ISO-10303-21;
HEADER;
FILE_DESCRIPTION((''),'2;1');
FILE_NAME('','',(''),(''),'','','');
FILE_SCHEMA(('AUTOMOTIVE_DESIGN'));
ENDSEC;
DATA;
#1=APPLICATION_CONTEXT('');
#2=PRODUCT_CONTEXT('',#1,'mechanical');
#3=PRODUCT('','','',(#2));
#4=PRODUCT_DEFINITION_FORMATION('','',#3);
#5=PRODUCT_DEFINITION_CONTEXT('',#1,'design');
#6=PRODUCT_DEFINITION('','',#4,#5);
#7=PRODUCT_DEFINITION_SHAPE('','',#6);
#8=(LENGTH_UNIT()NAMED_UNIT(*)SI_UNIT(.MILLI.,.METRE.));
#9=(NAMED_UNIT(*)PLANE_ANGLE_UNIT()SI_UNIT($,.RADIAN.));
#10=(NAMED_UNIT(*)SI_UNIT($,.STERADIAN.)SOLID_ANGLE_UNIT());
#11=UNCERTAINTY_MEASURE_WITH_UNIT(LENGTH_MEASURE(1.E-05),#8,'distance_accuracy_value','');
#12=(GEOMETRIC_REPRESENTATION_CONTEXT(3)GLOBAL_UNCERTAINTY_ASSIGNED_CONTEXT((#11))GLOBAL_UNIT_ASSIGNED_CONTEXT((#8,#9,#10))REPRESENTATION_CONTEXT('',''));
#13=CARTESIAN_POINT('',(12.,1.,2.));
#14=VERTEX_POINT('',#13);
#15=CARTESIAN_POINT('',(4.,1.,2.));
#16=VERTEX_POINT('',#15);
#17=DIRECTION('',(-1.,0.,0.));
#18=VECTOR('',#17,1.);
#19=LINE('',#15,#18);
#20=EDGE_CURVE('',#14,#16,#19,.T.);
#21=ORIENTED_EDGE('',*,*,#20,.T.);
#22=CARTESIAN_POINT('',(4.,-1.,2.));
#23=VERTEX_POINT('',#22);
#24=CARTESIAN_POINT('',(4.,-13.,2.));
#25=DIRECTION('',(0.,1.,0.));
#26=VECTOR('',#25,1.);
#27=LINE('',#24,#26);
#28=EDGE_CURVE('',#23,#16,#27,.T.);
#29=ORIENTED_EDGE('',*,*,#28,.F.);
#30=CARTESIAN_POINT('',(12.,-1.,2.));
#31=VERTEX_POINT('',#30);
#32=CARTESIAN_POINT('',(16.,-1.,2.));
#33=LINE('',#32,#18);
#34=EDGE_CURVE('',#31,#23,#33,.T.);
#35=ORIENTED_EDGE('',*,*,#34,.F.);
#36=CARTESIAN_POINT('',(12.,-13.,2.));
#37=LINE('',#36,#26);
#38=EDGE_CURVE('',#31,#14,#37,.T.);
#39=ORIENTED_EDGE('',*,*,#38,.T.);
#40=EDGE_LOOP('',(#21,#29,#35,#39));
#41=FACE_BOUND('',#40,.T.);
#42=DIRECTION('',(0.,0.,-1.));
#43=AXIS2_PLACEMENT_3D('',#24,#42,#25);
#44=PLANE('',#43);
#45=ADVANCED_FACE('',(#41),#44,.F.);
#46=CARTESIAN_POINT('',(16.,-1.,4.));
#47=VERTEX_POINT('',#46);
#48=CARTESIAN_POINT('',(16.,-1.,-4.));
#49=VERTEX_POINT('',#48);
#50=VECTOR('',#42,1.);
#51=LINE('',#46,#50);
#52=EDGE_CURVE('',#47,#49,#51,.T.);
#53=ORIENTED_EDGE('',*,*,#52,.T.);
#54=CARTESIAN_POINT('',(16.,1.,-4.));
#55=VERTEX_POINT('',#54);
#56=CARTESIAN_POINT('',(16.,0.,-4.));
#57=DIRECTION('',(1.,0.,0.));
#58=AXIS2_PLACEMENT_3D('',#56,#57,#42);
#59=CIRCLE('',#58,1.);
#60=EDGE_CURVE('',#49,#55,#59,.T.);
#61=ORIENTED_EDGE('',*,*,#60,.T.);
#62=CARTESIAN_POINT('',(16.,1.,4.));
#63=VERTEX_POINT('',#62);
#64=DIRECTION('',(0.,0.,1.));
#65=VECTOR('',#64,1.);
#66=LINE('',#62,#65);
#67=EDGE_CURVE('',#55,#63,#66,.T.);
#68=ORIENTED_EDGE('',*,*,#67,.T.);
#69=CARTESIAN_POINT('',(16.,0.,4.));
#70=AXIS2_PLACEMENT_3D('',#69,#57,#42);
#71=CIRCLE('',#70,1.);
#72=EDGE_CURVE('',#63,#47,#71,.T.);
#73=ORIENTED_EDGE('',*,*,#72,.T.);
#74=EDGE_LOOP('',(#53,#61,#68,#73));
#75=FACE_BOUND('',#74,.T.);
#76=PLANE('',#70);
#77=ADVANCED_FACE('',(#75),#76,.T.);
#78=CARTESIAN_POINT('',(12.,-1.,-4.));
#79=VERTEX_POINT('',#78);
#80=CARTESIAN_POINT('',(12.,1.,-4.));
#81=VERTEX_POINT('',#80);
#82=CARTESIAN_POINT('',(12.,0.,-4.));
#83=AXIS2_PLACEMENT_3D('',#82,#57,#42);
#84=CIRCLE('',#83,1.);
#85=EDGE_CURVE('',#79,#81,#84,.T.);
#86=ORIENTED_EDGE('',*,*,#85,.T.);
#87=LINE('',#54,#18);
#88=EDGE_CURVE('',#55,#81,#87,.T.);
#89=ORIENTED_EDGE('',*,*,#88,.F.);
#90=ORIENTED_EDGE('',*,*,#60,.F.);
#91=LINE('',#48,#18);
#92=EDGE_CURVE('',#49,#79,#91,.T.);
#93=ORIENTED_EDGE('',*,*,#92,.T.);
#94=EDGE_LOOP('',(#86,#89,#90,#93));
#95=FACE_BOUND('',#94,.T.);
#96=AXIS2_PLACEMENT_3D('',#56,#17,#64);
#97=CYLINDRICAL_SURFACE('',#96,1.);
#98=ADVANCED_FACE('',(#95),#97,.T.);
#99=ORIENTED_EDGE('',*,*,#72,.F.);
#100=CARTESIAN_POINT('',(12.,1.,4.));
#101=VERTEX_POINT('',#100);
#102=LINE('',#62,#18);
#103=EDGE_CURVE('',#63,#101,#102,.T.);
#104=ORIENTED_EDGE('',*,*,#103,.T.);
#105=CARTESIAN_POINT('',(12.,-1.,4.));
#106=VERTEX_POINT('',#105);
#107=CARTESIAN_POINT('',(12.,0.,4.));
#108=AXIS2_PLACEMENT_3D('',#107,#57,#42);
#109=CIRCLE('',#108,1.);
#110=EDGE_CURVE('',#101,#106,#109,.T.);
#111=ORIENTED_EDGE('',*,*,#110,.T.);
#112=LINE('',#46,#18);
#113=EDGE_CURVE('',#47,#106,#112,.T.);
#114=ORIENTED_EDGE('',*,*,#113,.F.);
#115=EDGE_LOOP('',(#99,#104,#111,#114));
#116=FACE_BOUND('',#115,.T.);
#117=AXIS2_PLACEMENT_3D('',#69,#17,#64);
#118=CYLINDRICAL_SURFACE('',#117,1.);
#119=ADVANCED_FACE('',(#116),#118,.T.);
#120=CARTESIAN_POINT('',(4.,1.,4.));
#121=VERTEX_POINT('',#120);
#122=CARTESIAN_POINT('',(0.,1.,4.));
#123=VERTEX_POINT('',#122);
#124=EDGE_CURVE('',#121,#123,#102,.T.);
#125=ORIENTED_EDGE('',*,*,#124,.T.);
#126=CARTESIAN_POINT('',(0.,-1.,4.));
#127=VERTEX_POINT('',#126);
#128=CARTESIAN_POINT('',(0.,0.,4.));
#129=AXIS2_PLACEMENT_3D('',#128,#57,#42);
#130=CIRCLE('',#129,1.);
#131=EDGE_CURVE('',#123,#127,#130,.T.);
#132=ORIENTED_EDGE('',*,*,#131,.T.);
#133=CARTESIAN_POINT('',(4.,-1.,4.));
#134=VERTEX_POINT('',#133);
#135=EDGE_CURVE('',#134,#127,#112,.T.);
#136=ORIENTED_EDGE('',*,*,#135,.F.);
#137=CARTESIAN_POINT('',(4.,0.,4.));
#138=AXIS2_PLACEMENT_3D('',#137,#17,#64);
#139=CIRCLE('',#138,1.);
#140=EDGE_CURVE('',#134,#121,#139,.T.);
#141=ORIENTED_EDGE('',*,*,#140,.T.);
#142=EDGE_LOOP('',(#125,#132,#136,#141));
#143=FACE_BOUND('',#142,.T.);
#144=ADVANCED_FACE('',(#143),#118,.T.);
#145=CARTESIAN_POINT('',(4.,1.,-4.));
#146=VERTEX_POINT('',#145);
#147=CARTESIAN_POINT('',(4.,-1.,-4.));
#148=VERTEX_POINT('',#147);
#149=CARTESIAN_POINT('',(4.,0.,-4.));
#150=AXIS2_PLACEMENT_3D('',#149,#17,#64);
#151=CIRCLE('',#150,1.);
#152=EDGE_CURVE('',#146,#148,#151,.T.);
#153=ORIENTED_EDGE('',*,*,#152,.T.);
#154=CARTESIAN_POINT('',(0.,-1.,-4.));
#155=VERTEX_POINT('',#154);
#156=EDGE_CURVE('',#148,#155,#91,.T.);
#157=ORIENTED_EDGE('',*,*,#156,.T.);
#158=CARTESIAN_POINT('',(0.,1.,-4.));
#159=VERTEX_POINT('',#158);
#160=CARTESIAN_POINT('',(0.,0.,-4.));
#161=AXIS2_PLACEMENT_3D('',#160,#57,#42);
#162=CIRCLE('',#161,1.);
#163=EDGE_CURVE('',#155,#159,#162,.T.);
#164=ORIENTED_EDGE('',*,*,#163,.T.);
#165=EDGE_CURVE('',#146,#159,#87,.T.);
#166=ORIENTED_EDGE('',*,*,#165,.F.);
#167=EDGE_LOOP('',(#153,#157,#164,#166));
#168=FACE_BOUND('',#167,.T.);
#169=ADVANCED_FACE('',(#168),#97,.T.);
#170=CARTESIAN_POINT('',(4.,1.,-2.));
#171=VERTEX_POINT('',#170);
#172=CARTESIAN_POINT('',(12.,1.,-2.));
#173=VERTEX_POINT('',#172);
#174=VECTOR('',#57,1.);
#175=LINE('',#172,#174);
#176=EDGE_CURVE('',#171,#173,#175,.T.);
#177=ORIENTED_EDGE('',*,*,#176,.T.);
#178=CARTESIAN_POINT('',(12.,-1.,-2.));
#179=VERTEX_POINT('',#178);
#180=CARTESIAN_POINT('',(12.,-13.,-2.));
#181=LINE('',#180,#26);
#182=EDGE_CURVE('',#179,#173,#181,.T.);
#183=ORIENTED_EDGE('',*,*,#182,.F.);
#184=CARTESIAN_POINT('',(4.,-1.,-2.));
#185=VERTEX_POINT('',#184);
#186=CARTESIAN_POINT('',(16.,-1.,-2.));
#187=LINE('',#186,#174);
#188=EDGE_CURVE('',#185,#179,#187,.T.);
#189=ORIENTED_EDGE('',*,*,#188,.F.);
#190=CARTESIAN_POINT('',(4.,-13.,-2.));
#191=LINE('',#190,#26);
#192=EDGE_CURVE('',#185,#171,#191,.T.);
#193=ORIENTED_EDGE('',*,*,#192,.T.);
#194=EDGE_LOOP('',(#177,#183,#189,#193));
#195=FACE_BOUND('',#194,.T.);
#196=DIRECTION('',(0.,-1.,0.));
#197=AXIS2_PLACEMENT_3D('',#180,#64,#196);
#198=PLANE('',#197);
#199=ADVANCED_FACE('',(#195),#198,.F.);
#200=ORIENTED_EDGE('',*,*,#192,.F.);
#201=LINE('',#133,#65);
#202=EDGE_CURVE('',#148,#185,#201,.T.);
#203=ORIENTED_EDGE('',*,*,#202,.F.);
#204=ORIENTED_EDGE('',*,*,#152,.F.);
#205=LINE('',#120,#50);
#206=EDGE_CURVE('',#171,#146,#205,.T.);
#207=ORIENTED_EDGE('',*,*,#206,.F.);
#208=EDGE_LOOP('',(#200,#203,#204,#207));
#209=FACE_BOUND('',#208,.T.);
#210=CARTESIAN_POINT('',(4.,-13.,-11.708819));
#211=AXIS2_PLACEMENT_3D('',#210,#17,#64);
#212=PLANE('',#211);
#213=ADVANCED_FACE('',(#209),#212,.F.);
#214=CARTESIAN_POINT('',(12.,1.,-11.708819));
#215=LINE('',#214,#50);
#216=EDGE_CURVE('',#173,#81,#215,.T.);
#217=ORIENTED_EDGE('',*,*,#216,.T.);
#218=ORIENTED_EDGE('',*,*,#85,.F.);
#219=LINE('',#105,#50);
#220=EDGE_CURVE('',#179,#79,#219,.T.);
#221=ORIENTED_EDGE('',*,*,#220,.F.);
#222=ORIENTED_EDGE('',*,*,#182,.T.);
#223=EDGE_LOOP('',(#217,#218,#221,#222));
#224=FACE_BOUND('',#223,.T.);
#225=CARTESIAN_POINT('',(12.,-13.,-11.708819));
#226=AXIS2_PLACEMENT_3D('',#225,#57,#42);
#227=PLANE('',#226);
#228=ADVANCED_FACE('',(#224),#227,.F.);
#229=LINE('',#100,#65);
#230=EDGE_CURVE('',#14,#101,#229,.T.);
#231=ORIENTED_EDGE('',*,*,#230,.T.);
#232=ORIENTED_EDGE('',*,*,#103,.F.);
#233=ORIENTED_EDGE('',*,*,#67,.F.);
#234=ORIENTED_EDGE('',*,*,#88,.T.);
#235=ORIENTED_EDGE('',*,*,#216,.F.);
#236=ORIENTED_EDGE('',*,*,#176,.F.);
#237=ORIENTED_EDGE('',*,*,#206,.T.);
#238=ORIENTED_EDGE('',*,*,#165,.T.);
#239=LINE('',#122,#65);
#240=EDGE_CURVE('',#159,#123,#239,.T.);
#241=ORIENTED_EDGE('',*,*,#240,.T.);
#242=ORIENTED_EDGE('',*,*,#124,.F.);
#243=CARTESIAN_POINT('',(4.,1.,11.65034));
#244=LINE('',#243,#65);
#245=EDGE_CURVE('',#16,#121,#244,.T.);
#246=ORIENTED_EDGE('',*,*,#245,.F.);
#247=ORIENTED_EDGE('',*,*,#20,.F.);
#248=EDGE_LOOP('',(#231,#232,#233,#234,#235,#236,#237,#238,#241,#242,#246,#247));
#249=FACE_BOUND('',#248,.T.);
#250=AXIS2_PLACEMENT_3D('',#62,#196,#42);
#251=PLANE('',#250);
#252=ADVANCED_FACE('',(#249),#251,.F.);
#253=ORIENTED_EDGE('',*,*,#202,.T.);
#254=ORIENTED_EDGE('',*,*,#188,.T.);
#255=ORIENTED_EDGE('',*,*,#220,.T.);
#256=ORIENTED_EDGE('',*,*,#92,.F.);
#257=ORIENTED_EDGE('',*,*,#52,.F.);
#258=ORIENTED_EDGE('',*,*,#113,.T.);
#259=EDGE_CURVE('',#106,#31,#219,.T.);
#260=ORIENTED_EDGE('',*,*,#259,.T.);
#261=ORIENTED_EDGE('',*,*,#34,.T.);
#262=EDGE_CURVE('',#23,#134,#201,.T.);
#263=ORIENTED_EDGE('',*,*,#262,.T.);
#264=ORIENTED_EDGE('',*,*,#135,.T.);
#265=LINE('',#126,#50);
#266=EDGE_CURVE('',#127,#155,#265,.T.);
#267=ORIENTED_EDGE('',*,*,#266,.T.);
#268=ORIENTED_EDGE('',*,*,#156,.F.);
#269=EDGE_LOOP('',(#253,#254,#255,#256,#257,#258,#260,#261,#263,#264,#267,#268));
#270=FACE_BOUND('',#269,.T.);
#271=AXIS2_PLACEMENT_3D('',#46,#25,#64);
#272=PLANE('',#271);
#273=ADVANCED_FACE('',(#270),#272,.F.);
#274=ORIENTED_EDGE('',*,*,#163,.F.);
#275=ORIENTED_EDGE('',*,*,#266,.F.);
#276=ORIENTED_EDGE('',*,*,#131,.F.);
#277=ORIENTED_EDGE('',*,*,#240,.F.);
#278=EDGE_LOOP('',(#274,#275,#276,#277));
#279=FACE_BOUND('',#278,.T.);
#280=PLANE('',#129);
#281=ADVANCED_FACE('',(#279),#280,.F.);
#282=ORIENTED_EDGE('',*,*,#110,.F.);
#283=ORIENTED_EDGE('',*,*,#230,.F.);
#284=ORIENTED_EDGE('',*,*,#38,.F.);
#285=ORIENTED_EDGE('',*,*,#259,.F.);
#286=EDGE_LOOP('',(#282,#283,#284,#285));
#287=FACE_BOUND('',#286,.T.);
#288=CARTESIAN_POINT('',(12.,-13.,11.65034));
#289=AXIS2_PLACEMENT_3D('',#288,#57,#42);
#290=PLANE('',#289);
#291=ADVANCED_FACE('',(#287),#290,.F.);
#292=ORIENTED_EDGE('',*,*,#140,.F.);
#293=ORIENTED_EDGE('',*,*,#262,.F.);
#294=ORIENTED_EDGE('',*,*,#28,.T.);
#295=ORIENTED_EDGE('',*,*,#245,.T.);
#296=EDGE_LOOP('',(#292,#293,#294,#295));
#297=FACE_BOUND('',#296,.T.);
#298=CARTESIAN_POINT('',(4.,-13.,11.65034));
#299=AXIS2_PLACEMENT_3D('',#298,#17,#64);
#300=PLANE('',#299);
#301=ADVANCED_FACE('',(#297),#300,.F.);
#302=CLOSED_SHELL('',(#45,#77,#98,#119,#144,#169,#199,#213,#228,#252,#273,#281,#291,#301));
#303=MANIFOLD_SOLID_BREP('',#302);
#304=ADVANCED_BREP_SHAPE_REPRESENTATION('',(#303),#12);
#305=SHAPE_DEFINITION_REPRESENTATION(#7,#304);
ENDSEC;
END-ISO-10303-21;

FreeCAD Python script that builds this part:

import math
import FreeCAD as App
import Part
import Sketcher
from FreeCAD import Vector
Q = App.Units.Quantity

doc = App.newDocument("Part")
body = doc.addObject("PartDesign::Body", "Body")

# Sketch on YZ plane
sketch1 = body.newObject("Sketcher::SketchObject", "Sketch")
sketch1.AttachmentSupport = (doc.getObject("YZ_Plane"), [""])
sketch1.MapMode = "FlatFace"
sketch1.addGeometry([
    Part.LineSegment(Vector(1, -4, 0), Vector(1, 4, 0)),
    Part.ArcOfCircle(Part.Circle(Vector(0, 4, 0), Vector(0, 0, 1), 1), math.radians(0), math.radians(180)),
    Part.LineSegment(Vector(-1, 4, 0), Vector(-1, -4, 0)),
    Part.ArcOfCircle(Part.Circle(Vector(0, -4, 0), Vector(0, 0, 1), 1), math.radians(180), math.radians(360)),
], False)
sketch1.addConstraint([
    Sketcher.Constraint("Tangent", 0, 2, 1, 1),
    Sketcher.Constraint("Tangent", 1, 2, 2, 1),
    Sketcher.Constraint("Tangent", 2, 2, 3, 1),
    Sketcher.Constraint("Tangent", 3, 2, 0, 1),
    Sketcher.Constraint("Vertical", 0),
    Sketcher.Constraint("Vertical", 2),
    Sketcher.Constraint("Symmetric", 1, 3, 3, 3, -1, 1),
    Sketcher.Constraint("Radius", 1, Q("1 mm")),
    Sketcher.Constraint("DistanceY", 0, 1, 0, 2, Q("8 mm")),
])
pad1 = body.newObject("PartDesign::Pad", "Pad")
pad1.Profile = sketch1
pad1.Length = 16

# Sketch on XZ plane
sketch2 = body.newObject("Sketcher::SketchObject", "Sketch001")
sketch2.AttachmentSupport = (doc.getObject("XZ_Plane"), [""])
sketch2.MapMode = "FlatFace"
sketch2.AttachmentOffset = App.Placement(Vector(0, 0, -1), App.Rotation())
sketch2.addGeometry([
    Part.LineSegment(Vector(4, -11.708819, 0), Vector(4, -2, 0)),  # 0
    Part.LineSegment(Vector(4, -2, 0), Vector(12, -2, 0)),  # 1
    Part.LineSegment(Vector(12, -2, 0), Vector(12, -11.708819, 0)),  # 2
    Part.LineSegment(Vector(12, -11.708819, 0), Vector(4, -11.708819, 0)),  # 3
    Part.LineSegment(Vector(4, 2, 0), Vector(4, 11.65034, 0)),  # 4
    Part.LineSegment(Vector(4, 11.65034, 0), Vector(12, 11.65034, 0)),  # 5
    Part.LineSegment(Vector(12, 11.65034, 0), Vector(12, 2, 0)),  # 6
    Part.LineSegment(Vector(12, 2, 0), Vector(4, 2, 0)),  # 7
], False)
sketch2.addConstraint([
    Sketcher.Constraint("Coincident", 0, 2, 1, 1),
    Sketcher.Constraint("Coincident", 1, 2, 2, 1),
    Sketcher.Constraint("Coincident", 2, 2, 3, 1),
    Sketcher.Constraint("Coincident", 3, 2, 0, 1),
    Sketcher.Constraint("Coincident", 4, 2, 5, 1),
    Sketcher.Constraint("Coincident", 5, 2, 6, 1),
    Sketcher.Constraint("Coincident", 6, 2, 7, 1),
    Sketcher.Constraint("Coincident", 7, 2, 4, 1),
    Sketcher.Constraint("Vertical", 0),
    Sketcher.Constraint("Horizontal", 1),
    Sketcher.Constraint("Vertical", 2),
    Sketcher.Constraint("Horizontal", 3),
    Sketcher.Constraint("Vertical", 4),
    Sketcher.Constraint("Horizontal", 5),
    Sketcher.Constraint("Vertical", 6),
    Sketcher.Constraint("Horizontal", 7),
    Sketcher.Constraint("Symmetric", 1, 2, 6, 2, -1),
    Sketcher.Constraint("Vertical", 3, 2, 4, 2),
    Sketcher.Constraint("DistanceX", 1, 1, 1, 2, Q("8 mm")),
    Sketcher.Constraint("DistanceX", -1, 1, 0, 2, Q("4 mm")),
    Sketcher.Constraint("DistanceY", 0, 2, -1, 1, Q("2 mm")),
    Sketcher.Constraint("DistanceY", 0, 1, 0, 2, Q("9.708819 mm")),
    Sketcher.Constraint("DistanceY", 4, 1, 4, 2, Q("9.65034 mm")),
])
pocket1 = body.newObject("PartDesign::Pocket", "Pocket")
pocket1.Profile = sketch2
pocket1.Length = 14
pocket1.Reversed = True

doc.recompute()
